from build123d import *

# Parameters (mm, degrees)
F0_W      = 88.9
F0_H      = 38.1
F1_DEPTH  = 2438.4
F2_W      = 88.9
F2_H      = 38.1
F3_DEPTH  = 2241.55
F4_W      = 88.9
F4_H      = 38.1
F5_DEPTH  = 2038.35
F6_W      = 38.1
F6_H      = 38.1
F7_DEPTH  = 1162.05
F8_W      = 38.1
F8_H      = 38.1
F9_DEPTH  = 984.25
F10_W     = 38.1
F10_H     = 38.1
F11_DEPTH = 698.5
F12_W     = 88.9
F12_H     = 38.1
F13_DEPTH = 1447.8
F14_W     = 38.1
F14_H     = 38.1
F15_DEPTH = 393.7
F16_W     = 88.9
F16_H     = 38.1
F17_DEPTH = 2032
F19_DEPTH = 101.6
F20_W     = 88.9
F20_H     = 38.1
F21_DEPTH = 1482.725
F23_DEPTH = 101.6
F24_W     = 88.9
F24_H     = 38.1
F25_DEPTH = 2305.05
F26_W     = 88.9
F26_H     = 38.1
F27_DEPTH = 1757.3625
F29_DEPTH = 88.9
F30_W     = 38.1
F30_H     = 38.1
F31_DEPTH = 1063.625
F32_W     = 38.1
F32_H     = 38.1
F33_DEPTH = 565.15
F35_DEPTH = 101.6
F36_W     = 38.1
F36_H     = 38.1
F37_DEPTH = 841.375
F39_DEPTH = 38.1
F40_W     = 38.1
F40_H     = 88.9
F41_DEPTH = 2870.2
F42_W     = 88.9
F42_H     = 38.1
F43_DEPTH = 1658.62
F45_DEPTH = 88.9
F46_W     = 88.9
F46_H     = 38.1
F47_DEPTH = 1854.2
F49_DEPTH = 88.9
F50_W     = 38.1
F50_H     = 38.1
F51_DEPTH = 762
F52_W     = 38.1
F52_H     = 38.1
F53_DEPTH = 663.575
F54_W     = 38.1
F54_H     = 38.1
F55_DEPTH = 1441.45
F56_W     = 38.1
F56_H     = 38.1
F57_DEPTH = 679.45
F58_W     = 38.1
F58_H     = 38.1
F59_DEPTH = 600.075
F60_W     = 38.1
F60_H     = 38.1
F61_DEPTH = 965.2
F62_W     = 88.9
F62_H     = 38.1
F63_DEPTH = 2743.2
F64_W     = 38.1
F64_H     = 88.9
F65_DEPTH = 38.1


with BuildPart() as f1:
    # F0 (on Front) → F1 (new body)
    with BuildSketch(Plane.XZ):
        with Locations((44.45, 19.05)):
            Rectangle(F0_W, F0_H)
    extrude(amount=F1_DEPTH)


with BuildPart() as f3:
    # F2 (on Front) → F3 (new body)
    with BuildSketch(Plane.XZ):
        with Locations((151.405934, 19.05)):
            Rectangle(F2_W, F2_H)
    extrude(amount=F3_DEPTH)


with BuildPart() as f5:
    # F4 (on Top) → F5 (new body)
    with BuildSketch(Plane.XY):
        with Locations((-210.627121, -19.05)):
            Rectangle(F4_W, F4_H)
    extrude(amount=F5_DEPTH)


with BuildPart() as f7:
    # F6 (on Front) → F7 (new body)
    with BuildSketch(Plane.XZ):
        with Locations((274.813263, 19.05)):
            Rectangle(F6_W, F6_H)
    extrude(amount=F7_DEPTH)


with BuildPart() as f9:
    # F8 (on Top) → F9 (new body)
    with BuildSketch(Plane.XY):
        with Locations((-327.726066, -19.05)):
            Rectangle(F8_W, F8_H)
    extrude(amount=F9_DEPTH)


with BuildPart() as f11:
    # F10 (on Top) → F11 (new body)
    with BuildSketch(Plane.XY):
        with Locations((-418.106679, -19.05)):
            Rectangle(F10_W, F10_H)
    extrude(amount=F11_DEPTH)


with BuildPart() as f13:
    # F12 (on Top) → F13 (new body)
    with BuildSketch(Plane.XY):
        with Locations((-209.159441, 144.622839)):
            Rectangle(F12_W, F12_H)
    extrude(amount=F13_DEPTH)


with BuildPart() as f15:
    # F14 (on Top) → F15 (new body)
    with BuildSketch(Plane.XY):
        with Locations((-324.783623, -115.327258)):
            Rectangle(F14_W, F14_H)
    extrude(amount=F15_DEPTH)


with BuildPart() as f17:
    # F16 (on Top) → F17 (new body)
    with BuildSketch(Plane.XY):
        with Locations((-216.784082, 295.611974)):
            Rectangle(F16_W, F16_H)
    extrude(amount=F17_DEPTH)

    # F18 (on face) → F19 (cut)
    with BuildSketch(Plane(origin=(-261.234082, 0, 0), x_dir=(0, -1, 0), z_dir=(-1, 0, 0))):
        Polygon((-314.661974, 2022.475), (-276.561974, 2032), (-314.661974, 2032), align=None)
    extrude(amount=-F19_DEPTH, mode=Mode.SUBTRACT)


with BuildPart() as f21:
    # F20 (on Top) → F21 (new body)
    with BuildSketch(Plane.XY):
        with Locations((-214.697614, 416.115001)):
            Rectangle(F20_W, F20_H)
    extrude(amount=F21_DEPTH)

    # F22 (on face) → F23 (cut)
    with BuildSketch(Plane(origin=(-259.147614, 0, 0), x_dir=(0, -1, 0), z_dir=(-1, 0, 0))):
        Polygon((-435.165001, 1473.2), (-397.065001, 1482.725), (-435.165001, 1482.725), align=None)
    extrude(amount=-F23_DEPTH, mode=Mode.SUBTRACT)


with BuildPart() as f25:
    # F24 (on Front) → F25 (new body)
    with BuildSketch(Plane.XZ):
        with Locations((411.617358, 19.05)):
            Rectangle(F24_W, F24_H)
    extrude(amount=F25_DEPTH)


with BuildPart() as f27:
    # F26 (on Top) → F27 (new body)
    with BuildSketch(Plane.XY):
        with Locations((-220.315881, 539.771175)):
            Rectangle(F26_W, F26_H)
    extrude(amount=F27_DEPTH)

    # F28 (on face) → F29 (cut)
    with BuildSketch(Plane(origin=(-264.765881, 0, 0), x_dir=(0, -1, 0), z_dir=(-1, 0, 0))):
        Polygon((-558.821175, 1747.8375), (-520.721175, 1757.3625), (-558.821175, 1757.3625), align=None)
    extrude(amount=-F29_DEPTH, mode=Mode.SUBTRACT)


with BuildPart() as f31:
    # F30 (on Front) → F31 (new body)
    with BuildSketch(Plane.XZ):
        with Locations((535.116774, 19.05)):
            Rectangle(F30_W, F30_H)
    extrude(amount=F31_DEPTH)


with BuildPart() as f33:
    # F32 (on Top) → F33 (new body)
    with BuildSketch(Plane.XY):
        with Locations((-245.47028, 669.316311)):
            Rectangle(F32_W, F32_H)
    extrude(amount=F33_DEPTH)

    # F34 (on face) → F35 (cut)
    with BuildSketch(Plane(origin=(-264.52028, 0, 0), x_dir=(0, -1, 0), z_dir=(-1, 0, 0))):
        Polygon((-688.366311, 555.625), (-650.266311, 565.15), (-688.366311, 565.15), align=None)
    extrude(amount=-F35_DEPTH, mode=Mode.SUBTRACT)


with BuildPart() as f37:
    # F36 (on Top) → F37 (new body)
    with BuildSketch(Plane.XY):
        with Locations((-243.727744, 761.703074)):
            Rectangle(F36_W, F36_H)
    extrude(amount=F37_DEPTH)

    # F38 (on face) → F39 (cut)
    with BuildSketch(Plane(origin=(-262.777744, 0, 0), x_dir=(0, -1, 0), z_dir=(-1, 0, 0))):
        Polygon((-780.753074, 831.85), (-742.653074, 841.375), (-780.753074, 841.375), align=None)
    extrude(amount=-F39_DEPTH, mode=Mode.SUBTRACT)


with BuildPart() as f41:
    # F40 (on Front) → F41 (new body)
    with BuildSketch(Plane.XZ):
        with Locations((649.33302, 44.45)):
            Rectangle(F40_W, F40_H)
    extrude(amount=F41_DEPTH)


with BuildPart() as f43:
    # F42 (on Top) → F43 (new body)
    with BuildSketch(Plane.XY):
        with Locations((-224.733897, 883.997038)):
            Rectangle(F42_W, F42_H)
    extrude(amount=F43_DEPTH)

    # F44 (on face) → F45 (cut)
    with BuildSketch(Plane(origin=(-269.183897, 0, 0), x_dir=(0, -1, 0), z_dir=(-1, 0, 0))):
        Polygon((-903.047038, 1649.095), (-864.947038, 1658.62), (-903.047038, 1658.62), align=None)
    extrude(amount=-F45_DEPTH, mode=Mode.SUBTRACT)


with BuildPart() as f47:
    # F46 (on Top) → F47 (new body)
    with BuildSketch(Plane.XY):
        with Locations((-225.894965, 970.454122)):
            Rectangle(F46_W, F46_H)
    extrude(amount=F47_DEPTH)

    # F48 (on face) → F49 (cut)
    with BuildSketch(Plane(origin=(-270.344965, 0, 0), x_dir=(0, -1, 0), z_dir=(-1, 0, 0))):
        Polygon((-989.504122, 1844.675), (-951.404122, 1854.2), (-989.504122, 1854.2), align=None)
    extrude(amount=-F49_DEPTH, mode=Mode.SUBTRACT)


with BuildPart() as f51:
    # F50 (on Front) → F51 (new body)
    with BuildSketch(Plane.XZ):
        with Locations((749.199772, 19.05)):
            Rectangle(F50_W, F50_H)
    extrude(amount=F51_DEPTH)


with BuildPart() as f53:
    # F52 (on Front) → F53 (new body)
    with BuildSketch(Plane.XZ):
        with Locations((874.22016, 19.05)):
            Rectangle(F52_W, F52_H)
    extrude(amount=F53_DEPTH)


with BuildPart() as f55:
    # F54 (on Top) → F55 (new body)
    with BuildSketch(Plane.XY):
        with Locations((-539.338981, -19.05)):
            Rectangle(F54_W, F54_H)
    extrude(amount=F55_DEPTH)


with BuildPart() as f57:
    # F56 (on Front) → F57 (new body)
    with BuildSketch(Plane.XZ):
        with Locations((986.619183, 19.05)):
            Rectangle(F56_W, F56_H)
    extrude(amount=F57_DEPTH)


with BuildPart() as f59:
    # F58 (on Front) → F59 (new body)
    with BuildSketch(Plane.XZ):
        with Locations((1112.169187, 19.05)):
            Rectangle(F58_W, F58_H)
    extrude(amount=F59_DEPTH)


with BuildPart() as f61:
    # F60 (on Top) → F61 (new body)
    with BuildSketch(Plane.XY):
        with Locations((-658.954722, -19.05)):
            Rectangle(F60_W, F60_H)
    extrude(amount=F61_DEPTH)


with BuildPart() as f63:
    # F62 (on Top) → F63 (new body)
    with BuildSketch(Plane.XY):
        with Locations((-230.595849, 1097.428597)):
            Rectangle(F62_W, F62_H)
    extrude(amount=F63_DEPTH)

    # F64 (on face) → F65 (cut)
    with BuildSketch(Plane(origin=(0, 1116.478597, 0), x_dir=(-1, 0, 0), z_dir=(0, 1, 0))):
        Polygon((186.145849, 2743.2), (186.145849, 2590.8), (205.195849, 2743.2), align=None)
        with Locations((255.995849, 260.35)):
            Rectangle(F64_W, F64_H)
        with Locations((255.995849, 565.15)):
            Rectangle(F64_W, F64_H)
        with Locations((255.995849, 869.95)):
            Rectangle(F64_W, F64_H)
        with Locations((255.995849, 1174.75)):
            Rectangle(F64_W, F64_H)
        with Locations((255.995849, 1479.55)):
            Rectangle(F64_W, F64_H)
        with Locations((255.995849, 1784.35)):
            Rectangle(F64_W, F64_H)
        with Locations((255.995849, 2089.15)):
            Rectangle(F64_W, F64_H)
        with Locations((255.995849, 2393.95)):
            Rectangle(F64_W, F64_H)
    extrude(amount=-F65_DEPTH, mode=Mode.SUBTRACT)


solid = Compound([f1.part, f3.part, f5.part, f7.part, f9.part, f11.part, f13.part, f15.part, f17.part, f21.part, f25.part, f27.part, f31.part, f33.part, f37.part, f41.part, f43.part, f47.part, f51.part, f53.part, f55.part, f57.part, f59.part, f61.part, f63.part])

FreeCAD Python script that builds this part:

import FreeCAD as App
import Part
import Sketcher
Q = App.Units.Quantity


def add_polygon(sketch, points):
    """Adds a closed chain of lines whose ends are joined by coincident constraints."""
    first, n = sketch.GeometryCount, len(points)
    for a, b in zip(points, points[1:] + points[:1]):
        sketch.addGeometry(Part.LineSegment(App.Vector(*a, 0), App.Vector(*b, 0)), False)
    for i in range(n):
        sketch.addConstraint(Sketcher.Constraint("Coincident", first + i, 2, first + (i + 1) % n, 1))

doc = App.newDocument("Part")
params = doc.addObject("Spreadsheet::Sheet", "Params")
for row, (alias, value) in enumerate([
    ("sketch1_width", "3.5 in"),
    ("sketch1_height", "1.5 in"),
    ("pad1_length", "96 in"),
    ("sketch2_width", "3.5 in"),
    ("sketch2_height", "1.5 in"),
    ("pad2_length", "88.25 in"),
    ("sketch3_width", "3.5 in"),
    ("sketch3_height", "1.5 in"),
    ("pad3_length", "80.25 in"),
    ("sketch4_width", "1.5 in"),
    ("pad4_length", "45.75 in"),
    ("sketch5_width", "1.5 in"),
    ("pad5_length", "38.75 in"),
    ("sketch6_width", "1.5 in"),
    ("pad6_length", "27.5 in"),
    ("sketch7_width", "3.5 in"),
    ("sketch7_height", "1.5 in"),
    ("pad7_length", "57 in"),
    ("sketch8_width", "1.5 in"),
    ("pad8_length", "15.5 in"),
    ("sketch9_width", "3.5 in"),
    ("sketch9_height", "1.5 in"),
    ("pad9_length", "80 in"),
    ("sketch10_width", "1.5 in"),
    ("sketch10_height", "0.375 in"),
    ("pocket1_length", "4 in"),
    ("sketch11_width", "3.5 in"),
    ("sketch11_height", "1.5 in"),
    ("pad10_length", "58.375 in"),
    ("sketch12_width", "1.5 in"),
    ("sketch12_height", "0.375 in"),
    ("pocket2_length", "4 in"),
    ("sketch13_width", "3.5 in"),
    ("sketch13_height", "1.5 in"),
    ("pad11_length", "90.75 in"),
    ("sketch14_width", "3.5 in"),
    ("sketch14_height", "1.5 in"),
    ("pad12_length", "69.1875 in"),
    ("sketch15_width", "1.5 in"),
    ("sketch15_height", "0.375 in"),
    ("pocket3_length", "3.5 in"),
    ("sketch16_width", "1.5 in"),
    ("pad13_length", "41.875 in"),
    ("sketch17_width", "1.5 in"),
    ("pad14_length", "22.25 in"),
    ("sketch18_width", "1.5 in"),
    ("sketch18_height", "0.375 in"),
    ("pocket4_length", "4 in"),
    ("sketch19_width", "1.5 in"),
    ("pad15_length", "33.125 in"),
    ("sketch20_width", "1.5 in"),
    ("sketch20_height", "0.375 in"),
    ("pocket5_length", "1.5 in"),
    ("sketch21_width", "1.5 in"),
    ("sketch21_height", "3.5 in"),
    ("pad16_length", "113 in"),
    ("sketch22_width", "3.5 in"),
    ("sketch22_height", "1.5 in"),
    ("pad17_length", "65.3 in"),
    ("sketch23_width", "1.5 in"),
    ("sketch23_height", "0.375 in"),
    ("pocket6_length", "3.5 in"),
    ("sketch24_width", "3.5 in"),
    ("sketch24_height", "1.5 in"),
    ("pad18_length", "73 in"),
    ("sketch25_width", "1.5 in"),
    ("sketch25_height", "0.375 in"),
    ("pocket7_length", "3.5 in"),
    ("sketch26_width", "1.5 in"),
    ("pad19_length", "30 in"),
    ("sketch27_width", "1.5 in"),
    ("pad20_length", "26.125 in"),
    ("sketch28_width", "1.5 in"),
    ("pad21_length", "56.75 in"),
    ("sketch29_width", "1.5 in"),
    ("pad22_length", "26.75 in"),
    ("sketch30_width", "1.5 in"),
    ("pad23_length", "23.625 in"),
    ("sketch31_width", "1.5 in"),
    ("pad24_length", "38 in"),
    ("sketch32_width", "3.5 in"),
    ("sketch32_height", "1.5 in"),
    ("pad25_length", "108 in"),
    ("sketch33_height", "6 in"),
    ("sketch33_width", "1.5 in"),
    ("sketch33_height2", "3.5 in"),
    ("sketch33_width2", "0.75 in"),
    ("pocket8_length", "1.5 in"),
], start=1):
    params.set(f"A{row}", alias)
    params.set(f"B{row}", "=" + value)
    params.setAlias(f"B{row}", alias)

body = doc.addObject("PartDesign::Body", "Body")

sketch1 = body.newObject("Sketcher::SketchObject", "Sketch")
sketch1.AttachmentSupport = (doc.getObject("XZ_Plane"), [""])
sketch1.MapMode = "FlatFace"
add_polygon(sketch1, [(0, 38), (0, 0), (89, 0), (89, 38)])
sketch1.addConstraint([
    Sketcher.Constraint("Vertical", 0),
    Sketcher.Constraint("Horizontal", 1),
    Sketcher.Constraint("Vertical", 2),
    Sketcher.Constraint("Horizontal", 3),
    Sketcher.Constraint("Coincident", 0, 2, -1, 1),
    Sketcher.Constraint("DistanceX", 1, 1, 1, 2, Q("3.5 in")),
    Sketcher.Constraint("DistanceY", 0, 2, 0, 1, Q("1.5 in")),
])
sketch1.setExpression("Constraints[9]", "Params.sketch1_width")
sketch1.setExpression("Constraints[10]", "Params.sketch1_height")
pad1 = body.newObject("PartDesign::Pad", "Pad")
pad1.Profile = sketch1
pad1.setExpression("Length", "Params.pad1_length")
body2 = doc.addObject("PartDesign::Body", "Body001")

sketch2 = body2.newObject("Sketcher::SketchObject", "Sketch001")
sketch2.AttachmentSupport = (doc.getObject("XZ_Plane001"), [""])
sketch2.MapMode = "FlatFace"
add_polygon(sketch2, [(107, 38), (107, 0), (196, 0), (196, 38)])
sketch2.addConstraint([
    Sketcher.Constraint("Vertical", 0),
    Sketcher.Constraint("Horizontal", 1),
    Sketcher.Constraint("Vertical", 2),
    Sketcher.Constraint("Horizontal", 3),
    Sketcher.Constraint("PointOnObject", 0, 2, -1),
    Sketcher.Constraint("DistanceX", 1, 1, 1, 2, Q("3.5 in")),
    Sketcher.Constraint("DistanceY", 0, 2, 0, 1, Q("1.5 in")),
    Sketcher.Constraint("DistanceX", -1, 1, 0, 2, Q("106.955934 mm")),
])
sketch2.setExpression("Constraints[9]", "Params.sketch2_width")
sketch2.setExpression("Constraints[10]", "Params.sketch2_height")
pad2 = body2.newObject("PartDesign::Pad", "Pad001")
pad2.Profile = sketch2
pad2.setExpression("Length", "Params.pad2_length")
body3 = doc.addObject("PartDesign::Body", "Body002")

sketch3 = body3.newObject("Sketcher::SketchObject", "Sketch002")
sketch3.AttachmentSupport = (doc.getObject("XY_Plane002"), [""])
sketch3.MapMode = "FlatFace"
add_polygon(sketch3, [(-255, 0), (-255, -38), (-166, -38), (-166, 0)])
sketch3.addConstraint([
    Sketcher.Constraint("Vertical", 0),
    Sketcher.Constraint("Horizontal", 1),
    Sketcher.Constraint("Vertical", 2),
    Sketcher.Constraint("Horizontal", 3),
    Sketcher.Constraint("PointOnObject", 2, 2, -1),
    Sketcher.Constraint("DistanceX", 1, 1, 1, 2, Q("3.5 in")),
    Sketcher.Constraint("DistanceY", 0, 2, 0, 1, Q("1.5 in")),
    Sketcher.Constraint("DistanceX", 0, 2, -1, 1, Q("255.077121 mm")),
])
sketch3.setExpression("Constraints[9]", "Params.sketch3_width")
sketch3.setExpression("Constraints[10]", "Params.sketch3_height")
pad3 = body3.newObject("PartDesign::Pad", "Pad002")
pad3.Profile = sketch3
pad3.setExpression("Length", "Params.pad3_length")
body4 = doc.addObject("PartDesign::Body", "Body003")

sketch4 = body4.newObject("Sketcher::SketchObject", "Sketch003")
sketch4.AttachmentSupport = (doc.getObject("XZ_Plane003"), [""])
sketch4.MapMode = "FlatFace"
add_polygon(sketch4, [(256, 38), (256, 0), (294, 0), (294, 38)])
sketch4.addConstraint([
    Sketcher.Constraint("Vertical", 0),
    Sketcher.Constraint("Horizontal", 1),
    Sketcher.Constraint("Vertical", 2),
    Sketcher.Constraint("Horizontal", 3),
    Sketcher.Constraint("PointOnObject", 0, 2, -1),
    Sketcher.Constraint("Equal", 3, 0),
    Sketcher.Constraint("DistanceX", 1, 1, 1, 2, Q("1.5 in")),
    Sketcher.Constraint("DistanceX", -1, 1, 0, 2, Q("255.763263 mm")),
])
sketch4.setExpression("Constraints[10]", "Params.sketch4_width")
pad4 = body4.newObject("PartDesign::Pad", "Pad003")
pad4.Profile = sketch4
pad4.setExpression("Length", "Params.pad4_length")
body5 = doc.addObject("PartDesign::Body", "Body004")

sketch5 = body5.newObject("Sketcher::SketchObject", "Sketch004")
sketch5.AttachmentSupport = (doc.getObject("XY_Plane004"), [""])
sketch5.MapMode = "FlatFace"
add_polygon(sketch5, [(-347, 0), (-347, -38), (-309, -38), (-309, 0)])
sketch5.addConstraint([
    Sketcher.Constraint("Vertical", 0),
    Sketcher.Constraint("Horizontal", 1),
    Sketcher.Constraint("Vertical", 2),
    Sketcher.Constraint("Horizontal", 3),
    Sketcher.Constraint("PointOnObject", 2, 2, -1),
    Sketcher.Constraint("Equal", 3, 0),
    Sketcher.Constraint("DistanceX", 1, 1, 1, 2, Q("1.5 in")),
    Sketcher.Constraint("DistanceX", 0, 2, -1, 1, Q("346.776066 mm")),
])
sketch5.setExpression("Constraints[10]", "Params.sketch5_width")
pad5 = body5.newObject("PartDesign::Pad", "Pad004")
pad5.Profile = sketch5
pad5.setExpression("Length", "Params.pad5_length")
body6 = doc.addObject("PartDesign::Body", "Body005")

sketch6 = body6.newObject("Sketcher::SketchObject", "Sketch005")
sketch6.AttachmentSupport = (doc.getObject("XY_Plane005"), [""])
sketch6.MapMode = "FlatFace"
add_polygon(sketch6, [(-437, 0), (-437, -38), (-399, -38), (-399, 0)])
sketch6.addConstraint([
    Sketcher.Constraint("Vertical", 0),
    Sketcher.Constraint("Horizontal", 1),
    Sketcher.Constraint("Vertical", 2),
    Sketcher.Constraint("Horizontal", 3),
    Sketcher.Constraint("PointOnObject", 2, 2, -1),
    Sketcher.Constraint("Equal", 3, 0),
    Sketcher.Constraint("DistanceX", 1, 1, 1, 2, Q("1.5 in")),
    Sketcher.Constraint("DistanceX", 0, 2, -1, 1, Q("437.156679 mm")),
])
sketch6.setExpression("Constraints[10]", "Params.sketch6_width")
pad6 = body6.newObject("PartDesign::Pad", "Pad005")
pad6.Profile = sketch6
pad6.setExpression("Length", "Params.pad6_length")
body7 = doc.addObject("PartDesign::Body", "Body006")

sketch7 = body7.newObject("Sketcher::SketchObject", "Sketch006")
sketch7.AttachmentSupport = (doc.getObject("XY_Plane006"), [""])
sketch7.MapMode = "FlatFace"
add_polygon(sketch7, [(-254, 164), (-254, 126), (-165, 126), (-165, 164)])
sketch7.addConstraint([
    Sketcher.Constraint("Vertical", 0),
    Sketcher.Constraint("Horizontal", 1),
    Sketcher.Constraint("Vertical", 2),
    Sketcher.Constraint("Horizontal", 3),
    Sketcher.Constraint("DistanceX", 1, 1, 1, 2, Q("3.5 in")),
    Sketcher.Constraint("DistanceY", 0, 2, 0, 1, Q("1.5 in")),
    Sketcher.Constraint("DistanceX", 0, 2, -1, 1, Q("253.609441 mm")),
    Sketcher.Constraint("DistanceY", -1, 1, 0, 2, Q("125.572839 mm")),
])
sketch7.setExpression("Constraints[8]", "Params.sketch7_width")
sketch7.setExpression("Constraints[9]", "Params.sketch7_height")
pad7 = body7.newObject("PartDesign::Pad", "Pad006")
pad7.Profile = sketch7
pad7.setExpression("Length", "Params.pad7_length")
body8 = doc.addObject("PartDesign::Body", "Body007")

sketch8 = body8.newObject("Sketcher::SketchObject", "Sketch007")
sketch8.AttachmentSupport = (doc.getObject("XY_Plane007"), [""])
sketch8.MapMode = "FlatFace"
add_polygon(sketch8, [(-344, -96), (-344, -134), (-306, -134), (-306, -96)])
sketch8.addConstraint([
    Sketcher.Constraint("Vertical", 0),
    Sketcher.Constraint("Horizontal", 1),
    Sketcher.Constraint("Vertical", 2),
    Sketcher.Constraint("Horizontal", 3),
    Sketcher.Constraint("Equal", 3, 0),
    Sketcher.Constraint("DistanceX", 1, 1, 1, 2, Q("1.5 in")),
    Sketcher.Constraint("DistanceY", 0, 2, -1, 1, Q("134.377258 mm")),
    Sketcher.Constraint("DistanceX", 0, 2, -1, 1, Q("343.833623 mm")),
])
sketch8.setExpression("Constraints[9]", "Params.sketch8_width")
pad8 = body8.newObject("PartDesign::Pad", "Pad007")
pad8.Profile = sketch8
pad8.setExpression("Length", "Params.pad8_length")
body9 = doc.addObject("PartDesign::Body", "Body008")

sketch9 = body9.newObject("Sketcher::SketchObject", "Sketch008")
sketch9.AttachmentSupport = (doc.getObject("XY_Plane008"), [""])
sketch9.MapMode = "FlatFace"
add_polygon(sketch9, [(-261, 315), (-261, 277), (-172, 277), (-172, 315)])
sketch9.addConstraint([
    Sketcher.Constraint("Vertical", 0),
    Sketcher.Constraint("Horizontal", 1),
    Sketcher.Constraint("Vertical", 2),
    Sketcher.Constraint("Horizontal", 3),
    Sketcher.Constraint("DistanceX", 1, 1, 1, 2, Q("3.5 in")),
    Sketcher.Constraint("DistanceY", 0, 2, 0, 1, Q("1.5 in")),
    Sketcher.Constraint("DistanceX", 0, 2, -1, 1, Q("261.234082 mm")),
    Sketcher.Constraint("DistanceY", -1, 1, 0, 2, Q("276.561974 mm")),
])
sketch9.setExpression("Constraints[8]", "Params.sketch9_width")
sketch9.setExpression("Constraints[9]", "Params.sketch9_height")
pad9 = body9.newObject("PartDesign::Pad", "Pad008")
pad9.Profile = sketch9
pad9.setExpression("Length", "Params.pad9_length")

sketch10 = body9.newObject("Sketcher::SketchObject", "Sketch009")
sketch10.AttachmentSupport = (doc.getObject("YZ_Plane008"), [""])
sketch10.MapMode = "FlatFace"
sketch10.AttachmentOffset = App.Placement(App.Vector(0, 0, -261.234082), App.Rotation())
add_polygon(sketch10, [(315, 2022), (277, 2032), (315, 2032)])
sketch10.addConstraint([
    Sketcher.Constraint("Horizontal", 1),
    Sketcher.Constraint("Vertical", 2),
    Sketcher.Constraint("DistanceX", 1, 1, 1, 2, Q("1.5 in")),
    Sketcher.Constraint("DistanceY", -1, 1, 0, 2, Q("80 in")),
    Sketcher.Constraint("DistanceY", 2, 2, 2, 1, Q("0.375 in")),
    Sketcher.Constraint("DistanceX", -1, 1, 0, 2, Q("276.561974 mm")),
])
sketch10.setExpression("Constraints[5]", "Params.sketch10_width")
sketch10.setExpression("Constraints[7]", "Params.sketch10_height")
pocket1 = body9.newObject("PartDesign::Pocket", "Pocket")
pocket1.Profile = sketch10
pocket1.setExpression("Length", "Params.pocket1_length")
pocket1.Reversed = True
body10 = doc.addObject("PartDesign::Body", "Body009")

sketch11 = body10.newObject("Sketcher::SketchObject", "Sketch010")
sketch11.AttachmentSupport = (doc.getObject("XY_Plane009"), [""])
sketch11.MapMode = "FlatFace"
add_polygon(sketch11, [(-259, 435), (-259, 397), (-170, 397), (-170, 435)])
sketch11.addConstraint([
    Sketcher.Constraint("Vertical", 0),
    Sketcher.Constraint("Horizontal", 1),
    Sketcher.Constraint("Vertical", 2),
    Sketcher.Constraint("Horizontal", 3),
    Sketcher.Constraint("DistanceX", 1, 1, 1, 2, Q("3.5 in")),
    Sketcher.Constraint("DistanceY", 0, 2, 0, 1, Q("1.5 in")),
    Sketcher.Constraint("DistanceY", -1, 1, 0, 2, Q("397.065001 mm")),
    Sketcher.Constraint("DistanceX", 0, 2, -1, 1, Q("259.147614 mm")),
])
sketch11.setExpression("Constraints[8]", "Params.sketch11_width")
sketch11.setExpression("Constraints[9]", "Params.sketch11_height")
pad10 = body10.newObject("PartDesign::Pad", "Pad009")
pad10.Profile = sketch11
pad10.setExpression("Length", "Params.pad10_length")

sketch12 = body10.newObject("Sketcher::SketchObject", "Sketch011")
sketch12.AttachmentSupport = (doc.getObject("YZ_Plane009"), [""])
sketch12.MapMode = "FlatFace"
sketch12.AttachmentOffset = App.Placement(App.Vector(0, 0, -259.147614), App.Rotation())
add_polygon(sketch12, [(435, 1473), (397, 1483), (435, 1483)])
sketch12.addConstraint([
    Sketcher.Constraint("Horizontal", 1),
    Sketcher.Constraint("Vertical", 2),
    Sketcher.Constraint("DistanceX", 1, 1, 1, 2, Q("1.5 in")),
    Sketcher.Constraint("DistanceY", -1, 1, 2, 2, Q("58 in")),
    Sketcher.Constraint("DistanceY", 2, 2, 2, 1, Q("0.375 in")),
    Sketcher.Constraint("DistanceX", -1, 1, 0, 2, Q("397.065001 mm")),
])
sketch12.setExpression("Constraints[5]", "Params.sketch12_width")
sketch12.setExpression("Constraints[7]", "Params.sketch12_height")
pocket2 = body10.newObject("PartDesign::Pocket", "Pocket001")
pocket2.Profile = sketch12
pocket2.setExpression("Length", "Params.pocket2_length")
pocket2.Reversed = True
body11 = doc.addObject("PartDesign::Body", "Body010")

sketch13 = body11.newObject("Sketcher::SketchObject", "Sketch012")
sketch13.AttachmentSupport = (doc.getObject("XZ_Plane010"), [""])
sketch13.MapMode = "FlatFace"
add_polygon(sketch13, [(367, 38), (367, 0), (456, 0), (456, 38)])
sketch13.addConstraint([
    Sketcher.Constraint("Vertical", 0),
    Sketcher.Constraint("Horizontal", 1),
    Sketcher.Constraint("Vertical", 2),
    Sketcher.Constraint("Horizontal", 3),
    Sketcher.Constraint("PointOnObject", 0, 2, -1),
    Sketcher.Constraint("DistanceX", 1, 1, 1, 2, Q("3.5 in")),
    Sketcher.Constraint("DistanceY", 0, 2, 0, 1, Q("1.5 in")),
    Sketcher.Constraint("DistanceX", -1, 1, 0, 2, Q("367.167358 mm")),
])
sketch13.setExpression("Constraints[9]", "Params.sketch13_width")
sketch13.setExpression("Constraints[10]", "Params.sketch13_height")
pad11 = body11.newObject("PartDesign::Pad", "Pad010")
pad11.Profile = sketch13
pad11.setExpression("Length", "Params.pad11_length")
body12 = doc.addObject("PartDesign::Body", "Body011")

sketch14 = body12.newObject("Sketcher::SketchObject", "Sketch013")
sketch14.AttachmentSupport = (doc.getObject("XY_Plane011"), [""])
sketch14.MapMode = "FlatFace"
add_polygon(sketch14, [(-265, 559), (-265, 521), (-176, 521), (-176, 559)])
sketch14.addConstraint([
    Sketcher.Constraint("Vertical", 0),
    Sketcher.Constraint("Horizontal", 1),
    Sketcher.Constraint("Vertical", 2),
    Sketcher.Constraint("Horizontal", 3),
    Sketcher.Constraint("DistanceX", 1, 1, 1, 2, Q("3.5 in")),
    Sketcher.Constraint("DistanceY", 0, 2, 0, 1, Q("1.5 in")),
    Sketcher.Constraint("DistanceX", 0, 2, -1, 1, Q("264.765881 mm")),
    Sketcher.Constraint("DistanceY", -1, 1, 0, 2, Q("520.721175 mm")),
])
sketch14.setExpression("Constraints[8]", "Params.sketch14_width")
sketch14.setExpression("Constraints[9]", "Params.sketch14_height")
pad12 = body12.newObject("PartDesign::Pad", "Pad011")
pad12.Profile = sketch14
pad12.setExpression("Length", "Params.pad12_length")

sketch15 = body12.newObject("Sketcher::SketchObject", "Sketch014")
sketch15.AttachmentSupport = (doc.getObject("YZ_Plane011"), [""])
sketch15.MapMode = "FlatFace"
sketch15.AttachmentOffset = App.Placement(App.Vector(0, 0, -264.765881), App.Rotation())
add_polygon(sketch15, [(559, 1748), (521, 1757), (559, 1757)])
sketch15.addConstraint([
    Sketcher.Constraint("Horizontal", 1),
    Sketcher.Constraint("Vertical", 2),
    Sketcher.Constraint("DistanceX", 1, 1, 1, 2, Q("1.5 in")),
    Sketcher.Constraint("DistanceY", 2, 2, 2, 1, Q("0.375 in")),
    Sketcher.Constraint("DistanceY", -1, 1, 0, 2, Q("69.1875 in")),
    Sketcher.Constraint("DistanceX", -1, 1, 0, 2, Q("520.721175 mm")),
])
sketch15.setExpression("Constraints[5]", "Params.sketch15_width")
sketch15.setExpression("Constraints[6]", "Params.sketch15_height")
pocket3 = body12.newObject("PartDesign::Pocket", "Pocket002")
pocket3.Profile = sketch15
pocket3.setExpression("Length", "Params.pocket3_length")
pocket3.Reversed = True
body13 = doc.addObject("PartDesign::Body", "Body012")

sketch16 = body13.newObject("Sketcher::SketchObject", "Sketch015")
sketch16.AttachmentSupport = (doc.getObject("XZ_Plane012"), [""])
sketch16.MapMode = "FlatFace"
add_polygon(sketch16, [(516, 38), (516, 0), (554, 0), (554, 38)])
sketch16.addConstraint([
    Sketcher.Constraint("Vertical", 0),
    Sketcher.Constraint("Horizontal", 1),
    Sketcher.Constraint("Vertical", 2),
    Sketcher.Constraint("Horizontal", 3),
    Sketcher.Constraint("PointOnObject", 0, 2, -1),
    Sketcher.Constraint("Equal", 3, 0),
    Sketcher.Constraint("DistanceX", 1, 1, 1, 2, Q("1.5 in")),
    Sketcher.Constraint("DistanceX", -1, 1, 0, 2, Q("516.066774 mm")),
])
sketch16.setExpression("Constraints[10]", "Params.sketch16_width")
pad13 = body13.newObject("PartDesign::Pad", "Pad012")
pad13.Profile = sketch16
pad13.setExpression("Length", "Params.pad13_length")
body14 = doc.addObject("PartDesign::Body", "Body013")

sketch17 = body14.newObject("Sketcher::SketchObject", "Sketch016")
sketch17.AttachmentSupport = (doc.getObject("XY_Plane013"), [""])
sketch17.MapMode = "FlatFace"
add_polygon(sketch17, [(-265, 688), (-265, 650), (-226, 650), (-226, 688)])
sketch17.addConstraint([
    Sketcher.Constraint("Vertical", 0),
    Sketcher.Constraint("Horizontal", 1),
    Sketcher.Constraint("Vertical", 2),
    Sketcher.Constraint("Horizontal", 3),
    Sketcher.Constraint("Equal", 3, 0),
    Sketcher.Constraint("DistanceX", 1, 1, 1, 2, Q("1.5 in")),
    Sketcher.Constraint("DistanceX", 0, 2, -1, 1, Q("264.52028 mm")),
    Sketcher.Constraint("DistanceY", -1, 1, 0, 2, Q("650.266311 mm")),
])
sketch17.setExpression("Constraints[9]", "Params.sketch17_width")
pad14 = body14.newObject("PartDesign::Pad", "Pad013")
pad14.Profile = sketch17
pad14.setExpression("Length", "Params.pad14_length")

sketch18 = body14.newObject("Sketcher::SketchObject", "Sketch017")
sketch18.AttachmentSupport = (doc.getObject("YZ_Plane013"), [""])
sketch18.MapMode = "FlatFace"
sketch18.AttachmentOffset = App.Placement(App.Vector(0, 0, -264.52028), App.Rotation())
add_polygon(sketch18, [(688, 556), (650, 565), (688, 565)])
sketch18.addConstraint([
    Sketcher.Constraint("Horizontal", 1),
    Sketcher.Constraint("Vertical", 2),
    Sketcher.Constraint("DistanceX", 1, 1, 1, 2, Q("1.5 in")),
    Sketcher.Constraint("DistanceY", 2, 2, 2, 1, Q("0.375 in")),
    Sketcher.Constraint("DistanceY", -1, 1, 0, 2, Q("22.25 in")),
    Sketcher.Constraint("DistanceX", -1, 1, 0, 2, Q("650.266311 mm")),
])
sketch18.setExpression("Constraints[5]", "Params.sketch18_width")
sketch18.setExpression("Constraints[6]", "Params.sketch18_height")
pocket4 = body14.newObject("PartDesign::Pocket", "Pocket003")
pocket4.Profile = sketch18
pocket4.setExpression("Length", "Params.pocket4_length")
pocket4.Reversed = True
body15 = doc.addObject("PartDesign::Body", "Body014")

sketch19 = body15.newObject("Sketcher::SketchObject", "Sketch018")
sketch19.AttachmentSupport = (doc.getObject("XY_Plane014"), [""])
sketch19.MapMode = "FlatFace"
add_polygon(sketch19, [(-263, 781), (-263, 743), (-225, 743), (-225, 781)])
sketch19.addConstraint([
    Sketcher.Constraint("Vertical", 0),
    Sketcher.Constraint("Horizontal", 1),
    Sketcher.Constraint("Vertical", 2),
    Sketcher.Constraint("Horizontal", 3),
    Sketcher.Constraint("Equal", 3, 0),
    Sketcher.Constraint("DistanceX", 1, 1, 1, 2, Q("1.5 in")),
    Sketcher.Constraint("DistanceX", 0, 2, -1, 1, Q("262.777744 mm")),
    Sketcher.Constraint("DistanceY", -1, 1, 0, 2, Q("742.653074 mm")),
])
sketch19.setExpression("Constraints[9]", "Params.sketch19_width")
pad15 = body15.newObject("PartDesign::Pad", "Pad014")
pad15.Profile = sketch19
pad15.setExpression("Length", "Params.pad15_length")

sketch20 = body15.newObject("Sketcher::SketchObject", "Sketch019")
sketch20.AttachmentSupport = (doc.getObject("YZ_Plane014"), [""])
sketch20.MapMode = "FlatFace"
sketch20.AttachmentOffset = App.Placement(App.Vector(0, 0, -262.777744), App.Rotation())
add_polygon(sketch20, [(781, 832), (743, 841), (781, 841)])
sketch20.addConstraint([
    Sketcher.Constraint("Horizontal", 1),
    Sketcher.Constraint("Vertical", 2),
    Sketcher.Constraint("DistanceX", 1, 1, 1, 2, Q("1.5 in")),
    Sketcher.Constraint("DistanceY", 2, 2, 2, 1, Q("0.375 in")),
    Sketcher.Constraint("DistanceY", -1, 1, 2, 2, Q("32.75 in")),
    Sketcher.Constraint("DistanceX", -1, 1, 0, 2, Q("742.653074 mm")),
])
sketch20.setExpression("Constraints[5]", "Params.sketch20_width")
sketch20.setExpression("Constraints[6]", "Params.sketch20_height")
pocket5 = body15.newObject("PartDesign::Pocket", "Pocket004")
pocket5.Profile = sketch20
pocket5.setExpression("Length", "Params.pocket5_length")
pocket5.Reversed = True
body16 = doc.addObject("PartDesign::Body", "Body015")

sketch21 = body16.newObject("Sketcher::SketchObject", "Sketch020")
sketch21.AttachmentSupport = (doc.getObject("XZ_Plane015"), [""])
sketch21.MapMode = "FlatFace"
add_polygon(sketch21, [(630, 89), (630, 0), (668, 0), (668, 89)])
sketch21.addConstraint([
    Sketcher.Constraint("Vertical", 0),
    Sketcher.Constraint("Horizontal", 1),
    Sketcher.Constraint("Vertical", 2),
    Sketcher.Constraint("Horizontal", 3),
    Sketcher.Constraint("PointOnObject", 0, 2, -1),
    Sketcher.Constraint("DistanceX", 1, 1, 1, 2, Q("1.5 in")),
    Sketcher.Constraint("DistanceY", 0, 2, 0, 1, Q("3.5 in")),
    Sketcher.Constraint("DistanceX", -1, 1, 0, 2, Q("630.28302 mm")),
])
sketch21.setExpression("Constraints[9]", "Params.sketch21_width")
sketch21.setExpression("Constraints[10]", "Params.sketch21_height")
pad16 = body16.newObject("PartDesign::Pad", "Pad015")
pad16.Profile = sketch21
pad16.setExpression("Length", "Params.pad16_length")
body17 = doc.addObject("PartDesign::Body", "Body016")

sketch22 = body17.newObject("Sketcher::SketchObject", "Sketch021")
sketch22.AttachmentSupport = (doc.getObject("XY_Plane016"), [""])
sketch22.MapMode = "FlatFace"
add_polygon(sketch22, [(-269, 903), (-269, 865), (-180, 865), (-180, 903)])
sketch22.addConstraint([
    Sketcher.Constraint("Vertical", 0),
    Sketcher.Constraint("Horizontal", 1),
    Sketcher.Constraint("Vertical", 2),
    Sketcher.Constraint("Horizontal", 3),
    Sketcher.Constraint("DistanceX", 1, 1, 1, 2, Q("3.5 in")),
    Sketcher.Constraint("DistanceY", 0, 2, 0, 1, Q("1.5 in")),
    Sketcher.Constraint("DistanceY", -1, 1, 0, 2, Q("864.947038 mm")),
    Sketcher.Constraint("DistanceX", 0, 2, -1, 1, Q("269.183897 mm")),
])
sketch22.setExpression("Constraints[8]", "Params.sketch22_width")
sketch22.setExpression("Constraints[9]", "Params.sketch22_height")
pad17 = body17.newObject("PartDesign::Pad", "Pad016")
pad17.Profile = sketch22
pad17.setExpression("Length", "Params.pad17_length")

sketch23 = body17.newObject("Sketcher::SketchObject", "Sketch022")
sketch23.AttachmentSupport = (doc.getObject("YZ_Plane016"), [""])
sketch23.MapMode = "FlatFace"
sketch23.AttachmentOffset = App.Placement(App.Vector(0, 0, -269.183897), App.Rotation())
add_polygon(sketch23, [(903, 1649), (865, 1659), (903, 1659)])
sketch23.addConstraint([
    Sketcher.Constraint("Horizontal", 1),
    Sketcher.Constraint("Vertical", 2),
    Sketcher.Constraint("DistanceX", 1, 1, 1, 2, Q("1.5 in")),
    Sketcher.Constraint("DistanceY", -1, 1, 0, 2, Q("65.3 in")),
    Sketcher.Constraint("DistanceY", 2, 2, 2, 1, Q("0.375 in")),
    Sketcher.Constraint("DistanceX", -1, 1, 0, 2, Q("864.947038 mm")),
])
sketch23.setExpression("Constraints[5]", "Params.sketch23_width")
sketch23.setExpression("Constraints[7]", "Params.sketch23_height")
pocket6 = body17.newObject("PartDesign::Pocket", "Pocket005")
pocket6.Profile = sketch23
pocket6.setExpression("Length", "Params.pocket6_length")
pocket6.Reversed = True
body18 = doc.addObject("PartDesign::Body", "Body017")

sketch24 = body18.newObject("Sketcher::SketchObject", "Sketch023")
sketch24.AttachmentSupport = (doc.getObject("XY_Plane017"), [""])
sketch24.MapMode = "FlatFace"
add_polygon(sketch24, [(-270, 990), (-270, 951), (-181, 951), (-181, 990)])
sketch24.addConstraint([
    Sketcher.Constraint("Vertical", 0),
    Sketcher.Constraint("Horizontal", 1),
    Sketcher.Constraint("Vertical", 2),
    Sketcher.Constraint("Horizontal", 3),
    Sketcher.Constraint("DistanceX", 1, 1, 1, 2, Q("3.5 in")),
    Sketcher.Constraint("DistanceY", 0, 2, 0, 1, Q("1.5 in")),
    Sketcher.Constraint("DistanceY", -1, 1, 0, 2, Q("951.404122 mm")),
    Sketcher.Constraint("DistanceX", 0, 2, -1, 1, Q("270.344965 mm")),
])
sketch24.setExpression("Constraints[8]", "Params.sketch24_width")
sketch24.setExpression("Constraints[9]", "Params.sketch24_height")
pad18 = body18.newObject("PartDesign::Pad", "Pad017")
pad18.Profile = sketch24
pad18.setExpression("Length", "Params.pad18_length")

sketch25 = body18.newObject("Sketcher::SketchObject", "Sketch024")
sketch25.AttachmentSupport = (doc.getObject("YZ_Plane017"), [""])
sketch25.MapMode = "FlatFace"
sketch25.AttachmentOffset = App.Placement(App.Vector(0, 0, -270.344965), App.Rotation())
add_polygon(sketch25, [(990, 1845), (951, 1854), (990, 1854)])
sketch25.addConstraint([
    Sketcher.Constraint("Horizontal", 1),
    Sketcher.Constraint("Vertical", 2),
    Sketcher.Constraint("DistanceX", 1, 1, 1, 2, Q("1.5 in")),
    Sketcher.Constraint("DistanceY", -1, 1, 0, 2, Q("73 in")),
    Sketcher.Constraint("DistanceY", 2, 2, 2, 1, Q("0.375 in")),
    Sketcher.Constraint("DistanceX", -1, 1, 0, 2, Q("951.404122 mm")),
])
sketch25.setExpression("Constraints[5]", "Params.sketch25_width")
sketch25.setExpression("Constraints[7]", "Params.sketch25_height")
pocket7 = body18.newObject("PartDesign::Pocket", "Pocket006")
pocket7.Profile = sketch25
pocket7.setExpression("Length", "Params.pocket7_length")
pocket7.Reversed = True
body19 = doc.addObject("PartDesign::Body", "Body018")

sketch26 = body19.newObject("Sketcher::SketchObject", "Sketch025")
sketch26.AttachmentSupport = (doc.getObject("XZ_Plane018"), [""])
sketch26.MapMode = "FlatFace"
add_polygon(sketch26, [(730, 38), (730, 0), (768, 0), (768, 38)])
sketch26.addConstraint([
    Sketcher.Constraint("Vertical", 0),
    Sketcher.Constraint("Horizontal", 1),
    Sketcher.Constraint("Vertical", 2),
    Sketcher.Constraint("Horizontal", 3),
    Sketcher.Constraint("PointOnObject", 0, 2, -1),
    Sketcher.Constraint("Equal", 3, 0),
    Sketcher.Constraint("DistanceX", 1, 1, 1, 2, Q("1.5 in")),
    Sketcher.Constraint("DistanceX", -1, 1, 0, 2, Q("730.149772 mm")),
])
sketch26.setExpression("Constraints[10]", "Params.sketch26_width")
pad19 = body19.newObject("PartDesign::Pad", "Pad018")
pad19.Profile = sketch26
pad19.setExpression("Length", "Params.pad19_length")
body20 = doc.addObject("PartDesign::Body", "Body019")

sketch27 = body20.newObject("Sketcher::SketchObject", "Sketch026")
sketch27.AttachmentSupport = (doc.getObject("XZ_Plane019"), [""])
sketch27.MapMode = "FlatFace"
add_polygon(sketch27, [(855, 38), (855, 0), (893, 0), (893, 38)])
sketch27.addConstraint([
    Sketcher.Constraint("Vertical", 0),
    Sketcher.Constraint("Horizontal", 1),
    Sketcher.Constraint("Vertical", 2),
    Sketcher.Constraint("Horizontal", 3),
    Sketcher.Constraint("PointOnObject", 0, 2, -1),
    Sketcher.Constraint("Equal", 3, 0),
    Sketcher.Constraint("DistanceX", 1, 1, 1, 2, Q("1.5 in")),
    Sketcher.Constraint("DistanceX", -1, 1, 0, 2, Q("855.17016 mm")),
])
sketch27.setExpression("Constraints[10]", "Params.sketch27_width")
pad20 = body20.newObject("PartDesign::Pad", "Pad019")
pad20.Profile = sketch27
pad20.setExpression("Length", "Params.pad20_length")
body21 = doc.addObject("PartDesign::Body", "Body020")

sketch28 = body21.newObject("Sketcher::SketchObject", "Sketch027")
sketch28.AttachmentSupport = (doc.getObject("XY_Plane020"), [""])
sketch28.MapMode = "FlatFace"
add_polygon(sketch28, [(-558, 0), (-558, -38), (-520, -38), (-520, 0)])
sketch28.addConstraint([
    Sketcher.Constraint("Vertical", 0),
    Sketcher.Constraint("Horizontal", 1),
    Sketcher.Constraint("Vertical", 2),
    Sketcher.Constraint("Horizontal", 3),
    Sketcher.Constraint("PointOnObject", 2, 2, -1),
    Sketcher.Constraint("Equal", 3, 0),
    Sketcher.Constraint("DistanceX", 1, 1, 1, 2, Q("1.5 in")),
    Sketcher.Constraint("DistanceX", 0, 2, -1, 1, Q("558.388981 mm")),
])
sketch28.setExpression("Constraints[10]", "Params.sketch28_width")
pad21 = body21.newObject("PartDesign::Pad", "Pad020")
pad21.Profile = sketch28
pad21.setExpression("Length", "Params.pad21_length")
body22 = doc.addObject("PartDesign::Body", "Body021")

sketch29 = body22.newObject("Sketcher::SketchObject", "Sketch028")
sketch29.AttachmentSupport = (doc.getObject("XZ_Plane021"), [""])
sketch29.MapMode = "FlatFace"
add_polygon(sketch29, [(968, 38), (968, 0), (1006, 0), (1006, 38)])
sketch29.addConstraint([
    Sketcher.Constraint("Vertical", 0),
    Sketcher.Constraint("Horizontal", 1),
    Sketcher.Constraint("Vertical", 2),
    Sketcher.Constraint("Horizontal", 3),
    Sketcher.Constraint("PointOnObject", 0, 2, -1),
    Sketcher.Constraint("Equal", 3, 0),
    Sketcher.Constraint("DistanceX", 1, 1, 1, 2, Q("1.5 in")),
    Sketcher.Constraint("DistanceX", -1, 1, 0, 2, Q("967.569183 mm")),
])
sketch29.setExpression("Constraints[10]", "Params.sketch29_width")
pad22 = body22.newObject("PartDesign::Pad", "Pad021")
pad22.Profile = sketch29
pad22.setExpression("Length", "Params.pad22_length")
body23 = doc.addObject("PartDesign::Body", "Body022")

sketch30 = body23.newObject("Sketcher::SketchObject", "Sketch029")
sketch30.AttachmentSupport = (doc.getObject("XZ_Plane022"), [""])
sketch30.MapMode = "FlatFace"
add_polygon(sketch30, [(1093, 38), (1093, 0), (1131, 0), (1131, 38)])
sketch30.addConstraint([
    Sketcher.Constraint("Vertical", 0),
    Sketcher.Constraint("Horizontal", 1),
    Sketcher.Constraint("Vertical", 2),
    Sketcher.Constraint("Horizontal", 3),
    Sketcher.Constraint("PointOnObject", 0, 2, -1),
    Sketcher.Constraint("Equal", 3, 0),
    Sketcher.Constraint("DistanceX", 1, 1, 1, 2, Q("1.5 in")),
    Sketcher.Constraint("DistanceX", -1, 1, 0, 2, Q("1093.119187 mm")),
])
sketch30.setExpression("Constraints[10]", "Params.sketch30_width")
pad23 = body23.newObject("PartDesign::Pad", "Pad022")
pad23.Profile = sketch30
pad23.setExpression("Length", "Params.pad23_length")
body24 = doc.addObject("PartDesign::Body", "Body023")

sketch31 = body24.newObject("Sketcher::SketchObject", "Sketch030")
sketch31.AttachmentSupport = (doc.getObject("XY_Plane023"), [""])
sketch31.MapMode = "FlatFace"
add_polygon(sketch31, [(-678, 0), (-678, -38), (-640, -38), (-640, 0)])
sketch31.addConstraint([
    Sketcher.Constraint("Vertical", 0),
    Sketcher.Constraint("Horizontal", 1),
    Sketcher.Constraint("Vertical", 2),
    Sketcher.Constraint("Horizontal", 3),
    Sketcher.Constraint("PointOnObject", 2, 2, -1),
    Sketcher.Constraint("Equal", 3, 0),
    Sketcher.Constraint("DistanceX", 1, 1, 1, 2, Q("1.5 in")),
    Sketcher.Constraint("DistanceX", 0, 2, -1, 1, Q("678.004722 mm")),
])
sketch31.setExpression("Constraints[10]", "Params.sketch31_width")
pad24 = body24.newObject("PartDesign::Pad", "Pad023")
pad24.Profile = sketch31
pad24.setExpression("Length", "Params.pad24_length")
body25 = doc.addObject("PartDesign::Body", "Body024")

sketch32 = body25.newObject("Sketcher::SketchObject", "Sketch031")
sketch32.AttachmentSupport = (doc.getObject("XY_Plane024"), [""])
sketch32.MapMode = "FlatFace"
add_polygon(sketch32, [(-275, 1116), (-275, 1078), (-186, 1078), (-186, 1116)])
sketch32.addConstraint([
    Sketcher.Constraint("Vertical", 0),
    Sketcher.Constraint("Horizontal", 1),
    Sketcher.Constraint("Vertical", 2),
    Sketcher.Constraint("Horizontal", 3),
    Sketcher.Constraint("DistanceX", 1, 1, 1, 2, Q("3.5 in")),
    Sketcher.Constraint("DistanceY", 0, 2, 0, 1, Q("1.5 in")),
    Sketcher.Constraint("DistanceX", 0, 2, -1, 1, Q("275.045849 mm")),
    Sketcher.Constraint("DistanceY", -1, 1, 0, 2, Q("1078.378597 mm")),
])
sketch32.setExpression("Constraints[8]", "Params.sketch32_width")
sketch32.setExpression("Constraints[9]", "Params.sketch32_height")
pad25 = body25.newObject("PartDesign::Pad", "Pad024")
pad25.Profile = sketch32
pad25.setExpression("Length", "Params.pad25_length")

sketch33 = body25.newObject("Sketcher::SketchObject", "Sketch032")
sketch33.AttachmentSupport = (doc.getObject("XZ_Plane024"), [""])
sketch33.MapMode = "FlatFace"
sketch33.AttachmentOffset = App.Placement(App.Vector(0, 0, -1116.478597), App.Rotation())
add_polygon(sketch33, [(-186, 2743), (-186, 2591), (-205, 2743)])
add_polygon(sketch33, [(-237, 305), (-237, 216), (-275, 216), (-275, 305)])
add_polygon(sketch33, [(-237, 610), (-237, 521), (-275, 521), (-275, 610)])
add_polygon(sketch33, [(-237, 914), (-237, 826), (-275, 826), (-275, 914)])
add_polygon(sketch33, [(-237, 1219), (-237, 1130), (-275, 1130), (-275, 1219)])
add_polygon(sketch33, [(-237, 1524), (-237, 1435), (-275, 1435), (-275, 1524)])
add_polygon(sketch33, [(-237, 1829), (-237, 1740), (-275, 1740), (-275, 1829)])
add_polygon(sketch33, [(-237, 2134), (-237, 2045), (-275, 2045), (-275, 2134)])
add_polygon(sketch33, [(-237, 2438), (-237, 2350), (-275, 2350), (-275, 2438)])
sketch33.addConstraint([
    Sketcher.Constraint("Vertical", 0),
    Sketcher.Constraint("Horizontal", 2),
    Sketcher.Constraint("Vertical", 3),
    Sketcher.Constraint("Horizontal", 4),
    Sketcher.Constraint("Vertical", 5),
    Sketcher.Constraint("Horizontal", 6),
    Sketcher.Constraint("Vertical", 7),
    Sketcher.Constraint("Horizontal", 8),
    Sketcher.Constraint("Vertical", 9),
    Sketcher.Constraint("Horizontal", 10),
    Sketcher.Constraint("Vertical", 11),
    Sketcher.Constraint("Horizontal", 12),
    Sketcher.Constraint("Vertical", 13),
    Sketcher.Constraint("Horizontal", 14),
    Sketcher.Constraint("Vertical", 15),
    Sketcher.Constraint("Horizontal", 16),
    Sketcher.Constraint("Vertical", 17),
    Sketcher.Constraint("Horizontal", 18),
    Sketcher.Constraint("Vertical", 19),
    Sketcher.Constraint("Horizontal", 20),
    Sketcher.Constraint("Vertical", 21),
    Sketcher.Constraint("Horizontal", 22),
    Sketcher.Constraint("Vertical", 23),
    Sketcher.Constraint("Horizontal", 24),
    Sketcher.Constraint("Vertical", 25),
    Sketcher.Constraint("Horizontal", 26),
    Sketcher.Constraint("Vertical", 27),
    Sketcher.Constraint("Horizontal", 28),
    Sketcher.Constraint("Vertical", 29),
    Sketcher.Constraint("Horizontal", 30),
    Sketcher.Constraint("Vertical", 31),
    Sketcher.Constraint("Horizontal", 32),
    Sketcher.Constraint("Vertical", 33),
    Sketcher.Constraint("Horizontal", 34),
    Sketcher.Constraint("Vertical", 6, 2, 7, 2),
    Sketcher.Constraint("Vertical", 5, 2, 8, 2),
    Sketcher.Constraint("Vertical", 10, 2, 11, 2),
    Sketcher.Constraint("Vertical", 9, 2, 12, 2),
    Sketcher.Constraint("Vertical", 14, 2, 15, 2),
    Sketcher.Constraint("Vertical", 13, 2, 16, 2),
    Sketcher.Constraint("Vertical", 18, 2, 19, 2),
    Sketcher.Constraint("Vertical", 17, 2, 20, 2),
    Sketcher.Constraint("Vertical", 22, 2, 23, 2),
    Sketcher.Constraint("Vertical", 21, 2, 24, 2),
    Sketcher.Constraint("Vertical", 26, 2, 27, 2),
    Sketcher.Constraint("Vertical", 25, 2, 28, 2),
    Sketcher.Constraint("Vertical", 30, 2, 31, 2),
    Sketcher.Constraint("Vertical", 29, 2, 32, 2),
    Sketcher.Constraint("Equal", 5, 7),
    Sketcher.Constraint("Equal", 9, 11),
    Sketcher.Constraint("Equal", 13, 15),
    Sketcher.Constraint("Equal", 17, 19),
    Sketcher.Constraint("Equal", 21, 23),
    Sketcher.Constraint("Equal", 25, 27),
    Sketcher.Constraint("Equal", 29, 31),
    Sketcher.Constraint("DistanceY", 0, 2, 0, 1, Q("6 in")),
    Sketcher.Constraint("DistanceX", 4, 2, 4, 1, Q("1.5 in")),
    Sketcher.Constraint("DistanceY", 3, 2, 3, 1, Q("3.5 in")),
    Sketcher.Constraint("DistanceY", -1, 1, 0, 2, Q("102 in")),
    Sketcher.Constraint("DistanceY", -1, 1, 5, 2, Q("12 in")),
    Sketcher.Constraint("DistanceY", -1, 1, 9, 2, Q("24 in")),
    Sketcher.Constraint("DistanceY", -1, 1, 13, 2, Q("36 in")),
    Sketcher.Constraint("DistanceY", -1, 1, 17, 2, Q("48 in")),
    Sketcher.Constraint("DistanceY", -1, 1, 21, 2, Q("60 in")),
    Sketcher.Constraint("DistanceY", -1, 1, 25, 2, Q("72 in")),
    Sketcher.Constraint("DistanceY", -1, 1, 29, 2, Q("84 in")),
    Sketcher.Constraint("DistanceY", -1, 1, 33, 2, Q("96 in")),
    Sketcher.Constraint("DistanceX", 3, 2, 0, 2, Q("2 in")),
    Sketcher.Constraint("DistanceX", 2, 1, 2, 2, Q("0.75 in")),
    Sketcher.Constraint("DistanceX", 0, 2, -1, 1, Q("186.145849 mm")),
])
sketch33.setExpression("Constraints[90]", "Params.sketch33_height")
sketch33.setExpression("Constraints[91]", "Params.sketch33_width")
sketch33.setExpression("Constraints[92]", "Params.sketch33_height2")
sketch33.setExpression("Constraints[103]", "Params.sketch33_width2")
pocket8 = body25.newObject("PartDesign::Pocket", "Pocket007")
pocket8.Profile = sketch33
pocket8.setExpression("Length", "Params.pocket8_length")
pocket8.Reversed = True

doc.recompute()
